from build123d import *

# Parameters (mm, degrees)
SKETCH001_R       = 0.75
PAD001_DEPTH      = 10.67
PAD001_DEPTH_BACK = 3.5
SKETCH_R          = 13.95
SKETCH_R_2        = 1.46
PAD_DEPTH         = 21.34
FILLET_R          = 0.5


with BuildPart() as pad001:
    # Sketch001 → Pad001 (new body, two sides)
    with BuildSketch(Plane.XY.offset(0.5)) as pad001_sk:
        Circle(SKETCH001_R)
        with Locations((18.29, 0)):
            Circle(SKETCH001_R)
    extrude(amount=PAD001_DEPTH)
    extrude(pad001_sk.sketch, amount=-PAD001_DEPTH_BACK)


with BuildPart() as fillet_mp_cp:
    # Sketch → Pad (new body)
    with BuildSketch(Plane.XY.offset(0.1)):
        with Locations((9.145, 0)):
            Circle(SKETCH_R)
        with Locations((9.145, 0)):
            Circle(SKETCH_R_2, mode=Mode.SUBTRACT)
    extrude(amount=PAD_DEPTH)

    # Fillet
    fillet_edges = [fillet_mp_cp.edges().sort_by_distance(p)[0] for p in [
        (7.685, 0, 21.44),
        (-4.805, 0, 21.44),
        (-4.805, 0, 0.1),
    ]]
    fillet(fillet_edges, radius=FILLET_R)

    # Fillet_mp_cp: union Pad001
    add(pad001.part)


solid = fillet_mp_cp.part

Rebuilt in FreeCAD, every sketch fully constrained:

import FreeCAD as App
import Part
import Sketcher
Q = App.Units.Quantity


def edges_at(feature, points):
    """Names of the edges that pass closest to the given points."""
    edges = feature.Shape.Edges
    near = lambda p: min(range(len(edges)), key=lambda i: edges[i].distToShape(Part.Vertex(*p))[0])
    return sorted({f"Edge{near(p) + 1}" for p in points})

doc = App.newDocument("Part")
params = doc.addObject("Spreadsheet::Sheet", "Params")
for row, (alias, value) in enumerate([
    ("sketch1_diameter", "1.5 mm"),
    ("pad1_length", "10.67 mm"),
    ("pad1_length2", "3.5 mm"),
    ("sketch2_diameter", "27.9 mm"),
    ("sketch2_diameter2", "2.92 mm"),
    ("pad2_length", "21.34 mm"),
    ("fillet_radius", "0.5 mm"),
], start=1):
    params.set(f"A{row}", alias)
    params.set(f"B{row}", "=" + value)
    params.setAlias(f"B{row}", alias)

body = doc.addObject("PartDesign::Body", "Body")
body.AllowCompound = True

# Sketch on XY plane
sketch1 = body.newObject("Sketcher::SketchObject", "Sketch")
sketch1.AttachmentSupport = (doc.getObject("XY_Plane"), [""])
sketch1.MapMode = "FlatFace"
sketch1.AttachmentOffset = App.Placement(App.Vector(0, 0, 0.5), App.Rotation())
sketch1.addGeometry([
    Part.Circle(App.Vector(0, 0, 0), App.Vector(0, 0, 1), 0.8),
    Part.Circle(App.Vector(18.3, 0, 0), App.Vector(0, 0, 1), 0.8),
], False)
sketch1.addConstraint([
    Sketcher.Constraint("Coincident", 0, 3, -1, 1),
    Sketcher.Constraint("Equal", 0, 1),
    Sketcher.Constraint("PointOnObject", 1, 3, -1),
    Sketcher.Constraint("Diameter", 0, Q("1.5 mm")),
    Sketcher.Constraint("DistanceX", -1, 1, 1, 3, Q("18.29 mm")),
])
sketch1.setExpression("Constraints[3]", "Params.sketch1_diameter")
pad1 = body.newObject("PartDesign::Pad", "Pad")
pad1.Profile = sketch1
pad1.Type = "TwoLengths"
pad1.setExpression("Length", "Params.pad1_length")
pad1.setExpression("Length2", "Params.pad1_length2")
body2 = doc.addObject("PartDesign::Body", "Body001")

# Sketch on XY plane
sketch2 = body2.newObject("Sketcher::SketchObject", "Sketch001")
sketch2.AttachmentSupport = (doc.getObject("XY_Plane001"), [""])
sketch2.MapMode = "FlatFace"
sketch2.AttachmentOffset = App.Placement(App.Vector(0, 0, 0.1), App.Rotation())
sketch2.addGeometry([
    Part.Circle(App.Vector(9.1, 0, 0), App.Vector(0, 0, 1), 13.9),
    Part.Circle(App.Vector(9.1, 0, 0), App.Vector(0, 0, 1), 1.5),
], False)
sketch2.addConstraint([
    Sketcher.Constraint("Coincident", 1, 3, 0, 3),
    Sketcher.Constraint("PointOnObject", 0, 3, -1),
    Sketcher.Constraint("Diameter", 0, Q("27.9 mm")),
    Sketcher.Constraint("Diameter", 1, Q("2.92 mm")),
    Sketcher.Constraint("DistanceX", -1, 1, 0, 3, Q("9.145 mm")),
])
sketch2.setExpression("Constraints[2]", "Params.sketch2_diameter")
sketch2.setExpression("Constraints[3]", "Params.sketch2_diameter2")
pad2 = body2.newObject("PartDesign::Pad", "Pad001")
pad2.Profile = sketch2
pad2.setExpression("Length", "Params.pad2_length")
doc.recompute()

fillet = body2.newObject("PartDesign::Fillet", "Fillet")
fillet.Base = (pad2, edges_at(pad2, [(7.685, 0, 21.44), (-4.805, 0, 21.44), (-4.805, 0, 0.1)]))
fillet.setExpression("Radius", "Params.fillet_radius")
doc.recompute()

boolean = body2.newObject("PartDesign::Boolean", "Boolean")
boolean.Type = "Fuse"
boolean.addObjects([body])

doc.recompute()
